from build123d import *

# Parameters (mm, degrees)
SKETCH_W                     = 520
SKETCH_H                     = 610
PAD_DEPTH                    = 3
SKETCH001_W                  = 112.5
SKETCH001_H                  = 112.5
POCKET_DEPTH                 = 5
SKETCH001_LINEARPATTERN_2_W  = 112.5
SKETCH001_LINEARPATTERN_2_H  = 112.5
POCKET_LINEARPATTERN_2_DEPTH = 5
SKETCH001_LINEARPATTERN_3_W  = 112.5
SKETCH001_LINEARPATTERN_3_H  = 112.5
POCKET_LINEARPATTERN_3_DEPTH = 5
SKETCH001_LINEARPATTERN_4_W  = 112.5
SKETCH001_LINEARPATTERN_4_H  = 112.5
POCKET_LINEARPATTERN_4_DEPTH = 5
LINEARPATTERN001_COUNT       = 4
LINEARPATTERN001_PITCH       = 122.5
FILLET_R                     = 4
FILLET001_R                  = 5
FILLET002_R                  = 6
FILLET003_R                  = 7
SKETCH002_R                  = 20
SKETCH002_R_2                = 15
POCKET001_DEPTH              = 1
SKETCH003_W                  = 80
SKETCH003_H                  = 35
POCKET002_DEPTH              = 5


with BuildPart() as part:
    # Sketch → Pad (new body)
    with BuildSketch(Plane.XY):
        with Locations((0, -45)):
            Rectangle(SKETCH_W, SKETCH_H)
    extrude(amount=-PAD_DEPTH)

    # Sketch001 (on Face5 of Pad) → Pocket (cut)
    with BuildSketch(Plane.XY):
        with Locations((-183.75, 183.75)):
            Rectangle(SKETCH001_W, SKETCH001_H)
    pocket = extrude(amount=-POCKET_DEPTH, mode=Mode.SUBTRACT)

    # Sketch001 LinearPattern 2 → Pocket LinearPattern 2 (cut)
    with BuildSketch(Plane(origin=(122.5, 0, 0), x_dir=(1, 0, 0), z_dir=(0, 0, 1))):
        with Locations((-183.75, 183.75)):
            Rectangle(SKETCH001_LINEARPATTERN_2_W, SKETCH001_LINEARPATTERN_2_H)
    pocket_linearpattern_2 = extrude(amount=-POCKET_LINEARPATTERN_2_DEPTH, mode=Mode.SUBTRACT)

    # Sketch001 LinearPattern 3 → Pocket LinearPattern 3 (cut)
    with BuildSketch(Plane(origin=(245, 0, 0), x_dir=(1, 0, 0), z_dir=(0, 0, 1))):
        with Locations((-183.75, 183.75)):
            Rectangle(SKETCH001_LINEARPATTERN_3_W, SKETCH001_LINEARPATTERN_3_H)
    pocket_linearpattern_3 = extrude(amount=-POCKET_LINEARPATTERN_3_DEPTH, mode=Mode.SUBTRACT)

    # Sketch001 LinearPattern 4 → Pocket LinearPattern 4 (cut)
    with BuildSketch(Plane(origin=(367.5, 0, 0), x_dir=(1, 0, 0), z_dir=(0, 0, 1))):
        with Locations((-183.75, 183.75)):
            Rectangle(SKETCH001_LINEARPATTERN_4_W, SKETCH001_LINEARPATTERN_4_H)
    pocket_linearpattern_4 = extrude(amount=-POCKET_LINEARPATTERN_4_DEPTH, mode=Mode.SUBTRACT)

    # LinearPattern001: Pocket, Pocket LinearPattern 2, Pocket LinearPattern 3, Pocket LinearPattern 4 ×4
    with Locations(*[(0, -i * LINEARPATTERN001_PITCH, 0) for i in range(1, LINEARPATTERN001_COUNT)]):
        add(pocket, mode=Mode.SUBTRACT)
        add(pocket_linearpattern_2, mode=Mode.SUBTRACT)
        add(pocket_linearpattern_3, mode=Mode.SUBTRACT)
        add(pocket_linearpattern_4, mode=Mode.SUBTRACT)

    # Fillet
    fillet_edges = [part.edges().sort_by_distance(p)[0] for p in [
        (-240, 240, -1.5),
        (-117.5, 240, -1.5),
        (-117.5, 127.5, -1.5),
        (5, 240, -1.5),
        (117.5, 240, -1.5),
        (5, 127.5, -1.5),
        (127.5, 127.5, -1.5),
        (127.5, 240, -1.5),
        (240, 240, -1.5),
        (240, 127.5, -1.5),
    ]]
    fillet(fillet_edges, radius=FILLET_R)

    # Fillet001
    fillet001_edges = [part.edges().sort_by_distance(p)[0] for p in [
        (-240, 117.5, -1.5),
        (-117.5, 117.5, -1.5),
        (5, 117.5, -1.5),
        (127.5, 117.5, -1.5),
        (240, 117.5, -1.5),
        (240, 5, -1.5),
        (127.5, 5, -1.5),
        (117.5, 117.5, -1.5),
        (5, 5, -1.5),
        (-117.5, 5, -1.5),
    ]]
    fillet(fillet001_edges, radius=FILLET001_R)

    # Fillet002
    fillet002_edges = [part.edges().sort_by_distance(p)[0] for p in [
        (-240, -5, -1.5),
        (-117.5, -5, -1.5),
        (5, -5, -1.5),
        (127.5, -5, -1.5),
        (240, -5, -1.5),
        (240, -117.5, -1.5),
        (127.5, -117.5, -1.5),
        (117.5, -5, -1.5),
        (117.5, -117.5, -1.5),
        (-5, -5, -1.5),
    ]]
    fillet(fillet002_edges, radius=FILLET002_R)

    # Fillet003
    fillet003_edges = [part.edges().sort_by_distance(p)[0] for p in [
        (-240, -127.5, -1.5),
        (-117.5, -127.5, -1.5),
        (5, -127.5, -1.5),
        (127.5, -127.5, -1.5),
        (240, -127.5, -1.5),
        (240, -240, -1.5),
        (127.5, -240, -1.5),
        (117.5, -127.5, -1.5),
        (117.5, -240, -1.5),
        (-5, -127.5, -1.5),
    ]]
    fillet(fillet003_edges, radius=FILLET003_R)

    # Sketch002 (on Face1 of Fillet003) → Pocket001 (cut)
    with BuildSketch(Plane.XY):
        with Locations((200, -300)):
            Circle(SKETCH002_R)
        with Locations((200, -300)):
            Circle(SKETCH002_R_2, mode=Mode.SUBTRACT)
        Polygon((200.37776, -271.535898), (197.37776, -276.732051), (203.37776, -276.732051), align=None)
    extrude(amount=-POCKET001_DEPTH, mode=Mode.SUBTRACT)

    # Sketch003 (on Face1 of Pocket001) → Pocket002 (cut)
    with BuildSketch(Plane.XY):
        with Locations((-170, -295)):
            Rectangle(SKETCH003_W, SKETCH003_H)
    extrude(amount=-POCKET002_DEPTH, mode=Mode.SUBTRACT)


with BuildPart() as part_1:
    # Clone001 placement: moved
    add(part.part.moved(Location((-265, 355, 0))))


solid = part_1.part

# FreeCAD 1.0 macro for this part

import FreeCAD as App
import Part
import Sketcher
Q = App.Units.Quantity


def edges_at(feature, points):
    """Names of the edges that pass closest to the given points."""
    edges = feature.Shape.Edges
    near = lambda p: min(range(len(edges)), key=lambda i: edges[i].distToShape(Part.Vertex(*p))[0])
    return sorted({f"Edge{near(p) + 1}" for p in points})

doc = App.newDocument("Part")
body = doc.addObject("PartDesign::Body", "Body")

sketch1 = body.newObject("Sketcher::SketchObject", "Sketch")
sketch1.AttachmentSupport = (doc.getObject("XY_Plane"), [""])
sketch1.MapMode = "FlatFace"
sketch1.addGeometry([
    Part.LineSegment(App.Vector(-260, 260, 0), App.Vector(-260, -350, 0)),
    Part.LineSegment(App.Vector(-260, -350, 0), App.Vector(260, -350, 0)),
    Part.LineSegment(App.Vector(260, -350, 0), App.Vector(260, 260, 0)),
    Part.LineSegment(App.Vector(260, 260, 0), App.Vector(-260, 260, 0)),
], False)
sketch1.addConstraint([
    Sketcher.Constraint("Coincident", 0, 2, 1, 1),
    Sketcher.Constraint("Coincident", 1, 2, 2, 1),
    Sketcher.Constraint("Coincident", 2, 2, 3, 1),
    Sketcher.Constraint("Coincident", 3, 2, 0, 1),
    Sketcher.Constraint("Vertical", 0),
    Sketcher.Constraint("Horizontal", 1),
    Sketcher.Constraint("Vertical", 2),
    Sketcher.Constraint("Horizontal", 3),
    Sketcher.Constraint("DistanceX", 1, 1, 1, 2, Q("520 mm")),
    Sketcher.Constraint("DistanceY", 0, 2, 0, 1, Q("610 mm")),
    Sketcher.Constraint("DistanceX", 0, 2, -1, 1, Q("260 mm")),
    Sketcher.Constraint("DistanceY", 0, 2, -1, 1, Q("350 mm")),
])
pad1 = body.newObject("PartDesign::Pad", "Pad")
pad1.Profile = sketch1
pad1.Length = 3
pad1.Reversed = True

sketch2 = body.newObject("Sketcher::SketchObject", "Sketch001")
sketch2.AttachmentSupport = (doc.getObject("XY_Plane"), [""])
sketch2.MapMode = "FlatFace"
sketch2.addGeometry([
    Part.LineSegment(App.Vector(-240, 240, 0), App.Vector(-240, 128, 0)),
    Part.LineSegment(App.Vector(-240, 128, 0), App.Vector(-128, 128, 0)),
    Part.LineSegment(App.Vector(-128, 128, 0), App.Vector(-128, 240, 0)),
    Part.LineSegment(App.Vector(-128, 240, 0), App.Vector(-240, 240, 0)),
], False)
sketch2.addConstraint([
    Sketcher.Constraint("Coincident", 0, 2, 1, 1),
    Sketcher.Constraint("Coincident", 1, 2, 2, 1),
    Sketcher.Constraint("Coincident", 2, 2, 3, 1),
    Sketcher.Constraint("Coincident", 3, 2, 0, 1),
    Sketcher.Constraint("Vertical", 0),
    Sketcher.Constraint("Horizontal", 1),
    Sketcher.Constraint("Vertical", 2),
    Sketcher.Constraint("Horizontal", 3),
    Sketcher.Constraint("Equal", 3, 0),
    Sketcher.Constraint("DistanceX", 1, 1, 1, 2, Q("112.5 mm")),
    Sketcher.Constraint("DistanceX", 0, 2, -1, 1, Q("240 mm")),
    Sketcher.Constraint("DistanceY", -1, 1, 2, 2, Q("240 mm")),
])
pocket1 = body.newObject("PartDesign::Pocket", "Pocket")
pocket1.Profile = sketch2
pocket1.Length = 5

sketch3 = body.newObject("Sketcher::SketchObject", "Sketch002")
sketch3.AttachmentSupport = (doc.getObject("XY_Plane"), [""])
sketch3.MapMode = "FlatFace"
sketch3.addGeometry([
    Part.LineSegment(App.Vector(-118, 240, 0), App.Vector(-118, 128, 0)),
    Part.LineSegment(App.Vector(-118, 128, 0), App.Vector(-5, 128, 0)),
    Part.LineSegment(App.Vector(-5, 128, 0), App.Vector(-5, 240, 0)),
    Part.LineSegment(App.Vector(-5, 240, 0), App.Vector(-118, 240, 0)),
], False)
sketch3.addConstraint([
    Sketcher.Constraint("Coincident", 0, 2, 1, 1),
    Sketcher.Constraint("Coincident", 1, 2, 2, 1),
    Sketcher.Constraint("Coincident", 2, 2, 3, 1),
    Sketcher.Constraint("Coincident", 3, 2, 0, 1),
    Sketcher.Constraint("Vertical", 0),
    Sketcher.Constraint("Horizontal", 1),
    Sketcher.Constraint("Vertical", 2),
    Sketcher.Constraint("Horizontal", 3),
    Sketcher.Constraint("Equal", 3, 0),
    Sketcher.Constraint("DistanceX", 1, 1, 1, 2, Q("112.5 mm")),
    Sketcher.Constraint("DistanceX", 1, 2, -1, 1, Q("5 mm")),
    Sketcher.Constraint("DistanceY", -1, 1, 2, 2, Q("240 mm")),
])
pocket2 = body.newObject("PartDesign::Pocket", "Pocket001")
pocket2.Profile = sketch3
pocket2.Length = 5

sketch4 = body.newObject("Sketcher::SketchObject", "Sketch003")
sketch4.AttachmentSupport = (doc.getObject("XY_Plane"), [""])
sketch4.MapMode = "FlatFace"
sketch4.addGeometry([
    Part.LineSegment(App.Vector(5, 240, 0), App.Vector(5, 128, 0)),
    Part.LineSegment(App.Vector(5, 128, 0), App.Vector(118, 128, 0)),
    Part.LineSegment(App.Vector(118, 128, 0), App.Vector(118, 240, 0)),
    Part.LineSegment(App.Vector(118, 240, 0), App.Vector(5, 240, 0)),
], False)
sketch4.addConstraint([
    Sketcher.Constraint("Coincident", 0, 2, 1, 1),
    Sketcher.Constraint("Coincident", 1, 2, 2, 1),
    Sketcher.Constraint("Coincident", 2, 2, 3, 1),
    Sketcher.Constraint("Coincident", 3, 2, 0, 1),
    Sketcher.Constraint("Vertical", 0),
    Sketcher.Constraint("Horizontal", 1),
    Sketcher.Constraint("Vertical", 2),
    Sketcher.Constraint("Horizontal", 3),
    Sketcher.Constraint("Equal", 3, 0),
    Sketcher.Constraint("DistanceX", 1, 1, 1, 2, Q("112.5 mm")),
    Sketcher.Constraint("DistanceX", -1, 1, 0, 2, Q("5 mm")),
    Sketcher.Constraint("DistanceY", -1, 1, 2, 2, Q("240 mm")),
])
pocket3 = body.newObject("PartDesign::Pocket", "Pocket002")
pocket3.Profile = sketch4
pocket3.Length = 5

sketch5 = body.newObject("Sketcher::SketchObject", "Sketch004")
sketch5.AttachmentSupport = (doc.getObject("XY_Plane"), [""])
sketch5.MapMode = "FlatFace"
sketch5.addGeometry([
    Part.LineSegment(App.Vector(128, 240, 0), App.Vector(128, 128, 0)),
    Part.LineSegment(App.Vector(128, 128, 0), App.Vector(240, 128, 0)),
    Part.LineSegment(App.Vector(240, 128, 0), App.Vector(240, 240, 0)),
    Part.LineSegment(App.Vector(240, 240, 0), App.Vector(128, 240, 0)),
], False)
sketch5.addConstraint([
    Sketcher.Constraint("Coincident", 0, 2, 1, 1),
    Sketcher.Constraint("Coincident", 1, 2, 2, 1),
    Sketcher.Constraint("Coincident", 2, 2, 3, 1),
    Sketcher.Constraint("Coincident", 3, 2, 0, 1),
    Sketcher.Constraint("Vertical", 0),
    Sketcher.Constraint("Horizontal", 1),
    Sketcher.Constraint("Vertical", 2),
    Sketcher.Constraint("Horizontal", 3),
    Sketcher.Constraint("Equal", 3, 0),
    Sketcher.Constraint("DistanceX", 1, 1, 1, 2, Q("112.5 mm")),
    Sketcher.Constraint("DistanceX", -1, 1, 1, 2, Q("240 mm")),
    Sketcher.Constraint("DistanceY", -1, 1, 2, 2, Q("240 mm")),
])
pocket4 = body.newObject("PartDesign::Pocket", "Pocket003")
pocket4.Profile = sketch5
pocket4.Length = 5
doc.recompute()

linearpattern = body.newObject("PartDesign::LinearPattern", "LinearPattern")
linearpattern.Originals = [pocket1, pocket2, pocket3, pocket4]
linearpattern.Direction = (doc.getObject("Y_Axis"), [""])
linearpattern.Mode = "offset"
linearpattern.Offset = 122.5
linearpattern.Occurrences = 4
linearpattern.Reversed = True
body.Tip = linearpattern
doc.recompute()

fillet = body.newObject("PartDesign::Fillet", "Fillet")
fillet.Base = (linearpattern, edges_at(linearpattern, [
    (-240, 240, -1.5),
    (-117.5, 240, -1.5),
    (-117.5, 127.5, -1.5),
    (5, 240, -1.5),
    (117.5, 240, -1.5),
    (5, 127.5, -1.5),
    (127.5, 127.5, -1.5),
    (127.5, 240, -1.5),
    (240, 240, -1.5),
    (240, 127.5, -1.5),
]))
fillet.Radius = 4
doc.recompute()

fillet2 = body.newObject("PartDesign::Fillet", "Fillet001")
fillet2.Base = (fillet, edges_at(fillet, [
    (-240, 117.5, -1.5),
    (-117.5, 117.5, -1.5),
    (5, 117.5, -1.5),
    (127.5, 117.5, -1.5),
    (240, 117.5, -1.5),
    (240, 5, -1.5),
    (127.5, 5, -1.5),
    (117.5, 117.5, -1.5),
    (5, 5, -1.5),
    (-117.5, 5, -1.5),
]))
fillet2.Radius = 5
doc.recompute()

fillet3 = body.newObject("PartDesign::Fillet", "Fillet002")
fillet3.Base = (fillet2, edges_at(fillet2, [
    (-240, -5, -1.5),
    (-117.5, -5, -1.5),
    (5, -5, -1.5),
    (127.5, -5, -1.5),
    (240, -5, -1.5),
    (240, -117.5, -1.5),
    (127.5, -117.5, -1.5),
    (117.5, -5, -1.5),
    (117.5, -117.5, -1.5),
    (-5, -5, -1.5),
]))
fillet3.Radius = 6
doc.recompute()

fillet4 = body.newObject("PartDesign::Fillet", "Fillet003")
fillet4.Base = (fillet3, edges_at(fillet3, [
    (-240, -127.5, -1.5),
    (-117.5, -127.5, -1.5),
    (5, -127.5, -1.5),
    (127.5, -127.5, -1.5),
    (240, -127.5, -1.5),
    (240, -240, -1.5),
    (127.5, -240, -1.5),
    (117.5, -127.5, -1.5),
    (117.5, -240, -1.5),
    (-5, -127.5, -1.5),
]))
fillet4.Radius = 7

sketch6 = body.newObject("Sketcher::SketchObject", "Sketch005")
sketch6.AttachmentSupport = (doc.getObject("XY_Plane"), [""])
sketch6.MapMode = "FlatFace"
sketch6.addGeometry([
    Part.Circle(App.Vector(200, -300, 0), App.Vector(0, 0, 1), 20),
    Part.Circle(App.Vector(200, -300, 0), App.Vector(0, 0, 1), 15),
    Part.LineSegment(App.Vector(200, -272, 0), App.Vector(197, -277, 0)),
    Part.LineSegment(App.Vector(197, -277, 0), App.Vector(203, -277, 0)),
    Part.LineSegment(App.Vector(203, -277, 0), App.Vector(200, -272, 0)),
], False)
sketch6.addConstraint([
    Sketcher.Constraint("Coincident", 2, 2, 3, 1),
    Sketcher.Constraint("Coincident", 3, 2, 4, 1),
    Sketcher.Constraint("Coincident", 4, 2, 2, 1),
    Sketcher.Constraint("Horizontal", 3),
    Sketcher.Constraint("Coincident", 1, 3, 0, 3),
    Sketcher.Constraint("Equal", 2, 4),
    Sketcher.Constraint("Diameter", 0, Q("40 mm")),
    Sketcher.Constraint("Diameter", 1, Q("30 mm")),
    Sketcher.Constraint("DistanceX", 3, 1, 3, 2, Q("6 mm")),
    Sketcher.Constraint("Angle", 2, Q("-119.999997 deg")),
    Sketcher.Constraint("DistanceX", -1, 1, 0, 3, Q("200 mm")),
    Sketcher.Constraint("DistanceY", 0, 3, -1, 1, Q("300 mm")),
    Sketcher.Constraint("DistanceX", -1, 1, 2, 2, Q("197.37776 mm")),
    Sketcher.Constraint("DistanceY", 2, 2, -1, 1, Q("276.732051 mm")),
])
pocket5 = body.newObject("PartDesign::Pocket", "Pocket004")
pocket5.Profile = sketch6
pocket5.Length = 1

sketch7 = body.newObject("Sketcher::SketchObject", "Sketch006")
sketch7.AttachmentSupport = (doc.getObject("XY_Plane"), [""])
sketch7.MapMode = "FlatFace"
sketch7.addGeometry([
    Part.LineSegment(App.Vector(-210, -278, 0), App.Vector(-210, -312, 0)),
    Part.LineSegment(App.Vector(-210, -312, 0), App.Vector(-130, -312, 0)),
    Part.LineSegment(App.Vector(-130, -312, 0), App.Vector(-130, -278, 0)),
    Part.LineSegment(App.Vector(-130, -278, 0), App.Vector(-210, -278, 0)),
], False)
sketch7.addConstraint([
    Sketcher.Constraint("Coincident", 0, 2, 1, 1),
    Sketcher.Constraint("Coincident", 1, 2, 2, 1),
    Sketcher.Constraint("Coincident", 2, 2, 3, 1),
    Sketcher.Constraint("Coincident", 3, 2, 0, 1),
    Sketcher.Constraint("Vertical", 0),
    Sketcher.Constraint("Horizontal", 1),
    Sketcher.Constraint("Vertical", 2),
    Sketcher.Constraint("Horizontal", 3),
    Sketcher.Constraint("DistanceX", 1, 1, 1, 2, Q("80 mm")),
    Sketcher.Constraint("DistanceY", 0, 2, 0, 1, Q("35 mm")),
    Sketcher.Constraint("DistanceX", 0, 2, -1, 1, Q("210 mm")),
    Sketcher.Constraint("DistanceY", 0, 2, -1, 1, Q("312.5 mm")),
])
pocket6 = body.newObject("PartDesign::Pocket", "Pocket005")
pocket6.Profile = sketch7
pocket6.Length = 5
body2 = doc.addObject("PartDesign::Body", "Body001")
doc.recompute()

body.Placement = App.Placement(App.Vector(-265, 355, 0), App.Rotation(App.Vector(0, 0, 1), 0))
boolean = body2.newObject("PartDesign::Boolean", "Boolean")
boolean.Type = "Fuse"
boolean.addObjects([body])

doc.recompute()
